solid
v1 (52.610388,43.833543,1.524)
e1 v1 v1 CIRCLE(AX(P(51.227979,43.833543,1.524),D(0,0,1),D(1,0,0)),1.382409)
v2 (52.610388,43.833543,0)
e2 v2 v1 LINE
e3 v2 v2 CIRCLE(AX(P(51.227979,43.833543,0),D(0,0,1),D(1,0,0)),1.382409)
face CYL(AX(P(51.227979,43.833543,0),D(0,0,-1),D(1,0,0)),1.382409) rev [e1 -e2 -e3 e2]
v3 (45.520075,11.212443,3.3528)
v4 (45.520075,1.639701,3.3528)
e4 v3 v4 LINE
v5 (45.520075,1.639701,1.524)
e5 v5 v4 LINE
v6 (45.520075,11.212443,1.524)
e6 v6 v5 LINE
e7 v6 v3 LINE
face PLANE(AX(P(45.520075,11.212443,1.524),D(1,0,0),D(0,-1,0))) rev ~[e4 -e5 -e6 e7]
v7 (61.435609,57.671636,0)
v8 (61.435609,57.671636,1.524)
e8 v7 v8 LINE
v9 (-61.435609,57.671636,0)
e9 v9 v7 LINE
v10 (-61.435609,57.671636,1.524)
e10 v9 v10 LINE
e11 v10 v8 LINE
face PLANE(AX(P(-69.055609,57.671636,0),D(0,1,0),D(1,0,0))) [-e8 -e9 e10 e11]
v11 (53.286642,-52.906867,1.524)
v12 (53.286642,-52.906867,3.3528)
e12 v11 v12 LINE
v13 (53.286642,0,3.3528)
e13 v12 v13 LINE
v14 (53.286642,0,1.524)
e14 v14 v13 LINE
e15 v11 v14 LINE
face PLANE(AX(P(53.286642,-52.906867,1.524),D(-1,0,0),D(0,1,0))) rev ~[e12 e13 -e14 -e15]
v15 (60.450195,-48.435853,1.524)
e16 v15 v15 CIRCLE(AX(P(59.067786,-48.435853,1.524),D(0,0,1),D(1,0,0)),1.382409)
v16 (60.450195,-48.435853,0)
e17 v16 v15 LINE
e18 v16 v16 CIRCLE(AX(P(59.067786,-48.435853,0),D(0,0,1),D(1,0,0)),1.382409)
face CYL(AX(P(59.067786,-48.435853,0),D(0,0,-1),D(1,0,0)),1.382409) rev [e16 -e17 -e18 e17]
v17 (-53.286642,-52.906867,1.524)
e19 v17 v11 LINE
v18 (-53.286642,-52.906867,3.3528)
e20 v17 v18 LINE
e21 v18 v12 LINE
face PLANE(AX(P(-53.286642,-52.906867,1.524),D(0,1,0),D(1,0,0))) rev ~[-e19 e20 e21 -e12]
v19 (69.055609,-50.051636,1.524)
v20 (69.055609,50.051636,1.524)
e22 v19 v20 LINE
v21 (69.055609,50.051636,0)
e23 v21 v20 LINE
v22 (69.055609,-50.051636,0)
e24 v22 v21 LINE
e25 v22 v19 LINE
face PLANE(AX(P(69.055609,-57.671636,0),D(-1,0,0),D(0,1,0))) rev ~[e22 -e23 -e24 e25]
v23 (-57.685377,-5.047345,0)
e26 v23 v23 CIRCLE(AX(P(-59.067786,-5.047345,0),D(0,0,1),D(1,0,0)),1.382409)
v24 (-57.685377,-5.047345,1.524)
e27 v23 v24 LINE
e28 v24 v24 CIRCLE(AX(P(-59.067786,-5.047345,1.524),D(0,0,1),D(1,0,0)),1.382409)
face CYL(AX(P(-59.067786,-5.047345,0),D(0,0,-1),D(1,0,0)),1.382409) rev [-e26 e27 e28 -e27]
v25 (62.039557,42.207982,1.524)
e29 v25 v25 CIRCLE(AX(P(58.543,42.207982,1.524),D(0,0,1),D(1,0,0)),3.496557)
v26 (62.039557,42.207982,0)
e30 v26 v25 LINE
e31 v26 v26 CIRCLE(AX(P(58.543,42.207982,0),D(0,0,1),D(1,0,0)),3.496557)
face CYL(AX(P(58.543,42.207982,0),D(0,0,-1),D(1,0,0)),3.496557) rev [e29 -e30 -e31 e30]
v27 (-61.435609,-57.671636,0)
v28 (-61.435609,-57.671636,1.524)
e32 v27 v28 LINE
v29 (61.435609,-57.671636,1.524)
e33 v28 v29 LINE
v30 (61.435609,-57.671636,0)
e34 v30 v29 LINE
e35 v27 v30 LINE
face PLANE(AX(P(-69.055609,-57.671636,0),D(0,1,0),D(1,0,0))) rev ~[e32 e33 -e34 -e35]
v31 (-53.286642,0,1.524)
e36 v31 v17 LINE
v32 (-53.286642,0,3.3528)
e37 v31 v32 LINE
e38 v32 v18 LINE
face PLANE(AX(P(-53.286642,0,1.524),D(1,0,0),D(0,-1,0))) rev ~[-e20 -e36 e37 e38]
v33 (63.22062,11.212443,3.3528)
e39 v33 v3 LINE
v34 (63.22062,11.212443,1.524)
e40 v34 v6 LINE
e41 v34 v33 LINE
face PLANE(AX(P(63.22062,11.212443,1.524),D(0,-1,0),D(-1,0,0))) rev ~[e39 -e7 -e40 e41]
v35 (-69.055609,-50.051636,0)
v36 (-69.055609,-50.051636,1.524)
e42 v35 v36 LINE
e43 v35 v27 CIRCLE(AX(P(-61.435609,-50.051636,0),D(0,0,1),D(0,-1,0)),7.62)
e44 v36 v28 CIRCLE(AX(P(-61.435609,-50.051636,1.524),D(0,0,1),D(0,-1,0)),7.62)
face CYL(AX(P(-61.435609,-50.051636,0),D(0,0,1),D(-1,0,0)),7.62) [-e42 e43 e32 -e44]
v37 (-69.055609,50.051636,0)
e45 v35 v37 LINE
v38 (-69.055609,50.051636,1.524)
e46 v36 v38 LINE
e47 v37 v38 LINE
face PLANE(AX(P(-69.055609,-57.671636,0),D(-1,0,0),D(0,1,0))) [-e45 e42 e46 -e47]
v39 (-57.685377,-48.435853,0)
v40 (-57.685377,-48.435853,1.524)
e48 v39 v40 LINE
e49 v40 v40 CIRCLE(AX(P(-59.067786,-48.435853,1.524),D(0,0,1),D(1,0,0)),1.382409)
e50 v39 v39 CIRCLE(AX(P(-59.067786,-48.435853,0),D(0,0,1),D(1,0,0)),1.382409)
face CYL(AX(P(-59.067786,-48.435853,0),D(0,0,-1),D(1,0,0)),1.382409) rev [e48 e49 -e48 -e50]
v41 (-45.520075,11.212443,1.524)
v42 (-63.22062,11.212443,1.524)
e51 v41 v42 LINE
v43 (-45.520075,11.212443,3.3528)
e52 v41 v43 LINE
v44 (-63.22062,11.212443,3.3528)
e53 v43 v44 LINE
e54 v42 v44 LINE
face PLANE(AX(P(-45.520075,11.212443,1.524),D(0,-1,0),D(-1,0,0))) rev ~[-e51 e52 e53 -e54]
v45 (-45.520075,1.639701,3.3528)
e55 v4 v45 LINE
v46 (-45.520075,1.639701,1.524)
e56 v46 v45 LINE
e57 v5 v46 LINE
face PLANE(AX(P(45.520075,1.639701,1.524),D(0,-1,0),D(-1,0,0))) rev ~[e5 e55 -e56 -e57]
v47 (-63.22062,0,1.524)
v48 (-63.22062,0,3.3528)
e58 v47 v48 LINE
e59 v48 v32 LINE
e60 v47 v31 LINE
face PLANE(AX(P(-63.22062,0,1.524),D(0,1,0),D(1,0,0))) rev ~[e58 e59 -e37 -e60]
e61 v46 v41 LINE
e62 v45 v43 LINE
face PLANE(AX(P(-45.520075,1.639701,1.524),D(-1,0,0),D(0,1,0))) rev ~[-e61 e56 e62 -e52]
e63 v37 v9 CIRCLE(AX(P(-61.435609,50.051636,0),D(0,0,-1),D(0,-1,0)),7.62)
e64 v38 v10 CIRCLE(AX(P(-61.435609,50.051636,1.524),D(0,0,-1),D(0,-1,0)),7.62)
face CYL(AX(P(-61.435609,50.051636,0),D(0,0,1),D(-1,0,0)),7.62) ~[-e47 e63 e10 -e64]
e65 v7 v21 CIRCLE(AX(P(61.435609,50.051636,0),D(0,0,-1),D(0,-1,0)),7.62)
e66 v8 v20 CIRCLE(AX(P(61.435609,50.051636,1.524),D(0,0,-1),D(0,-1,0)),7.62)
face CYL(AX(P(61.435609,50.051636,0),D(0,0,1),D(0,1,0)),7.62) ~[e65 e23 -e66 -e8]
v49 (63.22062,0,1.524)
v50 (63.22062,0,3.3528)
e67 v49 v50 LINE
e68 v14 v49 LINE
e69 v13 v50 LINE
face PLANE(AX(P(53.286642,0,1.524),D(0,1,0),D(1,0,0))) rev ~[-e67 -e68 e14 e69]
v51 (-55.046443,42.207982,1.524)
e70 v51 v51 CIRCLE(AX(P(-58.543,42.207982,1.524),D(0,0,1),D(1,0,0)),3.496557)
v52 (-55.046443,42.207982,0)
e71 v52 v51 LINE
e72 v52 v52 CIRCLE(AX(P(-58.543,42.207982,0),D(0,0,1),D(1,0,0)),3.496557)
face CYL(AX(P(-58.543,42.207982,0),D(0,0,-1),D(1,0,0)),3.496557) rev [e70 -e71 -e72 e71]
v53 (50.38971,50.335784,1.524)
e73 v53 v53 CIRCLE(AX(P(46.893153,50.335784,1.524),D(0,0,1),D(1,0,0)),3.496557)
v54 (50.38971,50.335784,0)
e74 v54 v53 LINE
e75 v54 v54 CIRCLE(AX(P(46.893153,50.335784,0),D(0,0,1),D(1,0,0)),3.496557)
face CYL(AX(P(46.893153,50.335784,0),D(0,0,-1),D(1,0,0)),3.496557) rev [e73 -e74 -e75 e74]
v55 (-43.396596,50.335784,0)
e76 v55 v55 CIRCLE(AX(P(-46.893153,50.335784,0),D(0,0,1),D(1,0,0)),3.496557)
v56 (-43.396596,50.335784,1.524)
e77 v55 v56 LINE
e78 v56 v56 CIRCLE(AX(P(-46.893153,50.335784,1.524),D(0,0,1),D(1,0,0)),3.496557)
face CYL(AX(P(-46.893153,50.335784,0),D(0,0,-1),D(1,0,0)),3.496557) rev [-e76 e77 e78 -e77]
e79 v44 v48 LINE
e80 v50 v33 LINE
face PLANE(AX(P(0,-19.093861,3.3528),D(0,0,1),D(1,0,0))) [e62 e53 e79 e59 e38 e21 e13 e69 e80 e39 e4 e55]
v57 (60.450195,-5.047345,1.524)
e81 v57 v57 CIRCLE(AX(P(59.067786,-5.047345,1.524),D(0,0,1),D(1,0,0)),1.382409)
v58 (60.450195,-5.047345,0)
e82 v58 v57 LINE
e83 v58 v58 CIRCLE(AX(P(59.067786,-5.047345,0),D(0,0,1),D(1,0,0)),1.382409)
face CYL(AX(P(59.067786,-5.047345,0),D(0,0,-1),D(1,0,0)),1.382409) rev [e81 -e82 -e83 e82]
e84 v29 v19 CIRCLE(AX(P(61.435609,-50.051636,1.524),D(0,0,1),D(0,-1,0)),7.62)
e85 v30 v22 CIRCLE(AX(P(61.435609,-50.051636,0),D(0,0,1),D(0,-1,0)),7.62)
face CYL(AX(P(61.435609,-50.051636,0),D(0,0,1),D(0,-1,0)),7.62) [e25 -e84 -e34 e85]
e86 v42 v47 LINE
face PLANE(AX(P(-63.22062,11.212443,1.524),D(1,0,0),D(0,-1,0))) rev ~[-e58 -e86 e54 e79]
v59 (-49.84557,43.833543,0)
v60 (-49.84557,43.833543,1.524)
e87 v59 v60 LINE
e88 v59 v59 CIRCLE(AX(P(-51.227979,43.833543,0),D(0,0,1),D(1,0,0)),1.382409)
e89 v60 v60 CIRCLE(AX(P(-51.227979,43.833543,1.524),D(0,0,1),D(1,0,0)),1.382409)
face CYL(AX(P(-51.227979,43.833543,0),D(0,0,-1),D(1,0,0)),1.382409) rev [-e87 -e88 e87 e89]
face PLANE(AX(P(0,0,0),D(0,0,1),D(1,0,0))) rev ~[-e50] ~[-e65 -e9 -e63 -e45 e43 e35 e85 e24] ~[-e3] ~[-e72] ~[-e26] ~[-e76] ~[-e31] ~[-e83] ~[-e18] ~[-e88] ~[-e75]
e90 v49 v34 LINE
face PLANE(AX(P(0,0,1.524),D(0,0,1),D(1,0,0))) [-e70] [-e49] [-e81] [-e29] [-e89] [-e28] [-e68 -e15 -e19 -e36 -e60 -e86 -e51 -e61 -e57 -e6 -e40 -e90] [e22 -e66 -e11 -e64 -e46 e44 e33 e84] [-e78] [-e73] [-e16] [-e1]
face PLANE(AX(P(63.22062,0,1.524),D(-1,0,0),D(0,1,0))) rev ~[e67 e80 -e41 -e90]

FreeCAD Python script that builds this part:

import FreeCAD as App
import Part
import Sketcher

V = App.Vector
Q = App.Units.Quantity


def edges_at(feature, points):
    """Names of the edges that pass closest to the given points."""
    edges = feature.Shape.Edges
    near = lambda p: min(range(len(edges)), key=lambda i: edges[i].distToShape(Part.Vertex(*p))[0])
    return sorted({f"Edge{near(p) + 1}" for p in points})


def add_polygon(sketch, points):
    """Adds a closed chain of lines whose ends are joined by coincident constraints."""
    first, n = sketch.GeometryCount, len(points)
    for a, b in zip(points, points[1:] + points[:1]):
        sketch.addGeometry(Part.LineSegment(App.Vector(*a, 0), App.Vector(*b, 0)), False)
    for i in range(n):
        sketch.addConstraint(Sketcher.Constraint("Coincident", first + i, 2, first + (i + 1) % n, 1))

doc = App.newDocument("Part")
body = doc.addObject("PartDesign::Body", "Body")

sketch1 = body.newObject("Sketcher::SketchObject", "Sketch")
sketch1.AttachmentSupport = (doc.getObject("XY_Plane"), [""])
sketch1.MapMode = "FlatFace"
add_polygon(sketch1, [(-69.1, 57.7), (-69.1, -57.7), (69.1, -57.7), (69.1, 57.7)])
sketch1.addGeometry(Part.Circle(V(-59.1, -48.4, 0), V(0, 0, 1), 1.4), False)
sketch1.addGeometry(Part.Circle(V(-59.1, -5, 0), V(0, 0, 1), 1.4), False)
sketch1.addGeometry(Part.Circle(V(59.1, -48.4, 0), V(0, 0, 1), 1.4), False)
sketch1.addGeometry(Part.Circle(V(59.1, -5, 0), V(0, 0, 1), 1.4), False)
sketch1.addGeometry(Part.Circle(V(-58.5, 42.2, 0), V(0, 0, 1), 3.5), False)
sketch1.addGeometry(Part.Circle(V(-51.2, 43.8, 0), V(0, 0, 1), 1.4), False)
sketch1.addGeometry(Part.Circle(V(-46.9, 50.3, 0), V(0, 0, 1), 3.5), False)
sketch1.addGeometry(Part.Circle(V(51.2, 43.8, 0), V(0, 0, 1), 1.4), False)
sketch1.addGeometry(Part.Circle(V(58.5, 42.2, 0), V(0, 0, 1), 3.5), False)
sketch1.addGeometry(Part.Circle(V(46.9, 50.3, 0), V(0, 0, 1), 3.5), False)
sketch1.addConstraint(Sketcher.Constraint("Vertical", 0))
sketch1.addConstraint(Sketcher.Constraint("Horizontal", 1))
sketch1.addConstraint(Sketcher.Constraint("Vertical", 2))
sketch1.addConstraint(Sketcher.Constraint("Horizontal", 3))
sketch1.addConstraint(Sketcher.Constraint("Equal", 4, 5))
sketch1.addConstraint(Sketcher.Constraint("Equal", 5, 6))
sketch1.addConstraint(Sketcher.Constraint("Equal", 6, 7))
sketch1.addConstraint(Sketcher.Constraint("Equal", 7, 9))
sketch1.addConstraint(Sketcher.Constraint("Equal", 8, 10))
sketch1.addConstraint(Sketcher.Constraint("Equal", 9, 11))
sketch1.addConstraint(Sketcher.Constraint("Equal", 10, 12))
sketch1.addConstraint(Sketcher.Constraint("Equal", 12, 13))
sketch1.addConstraint(Sketcher.Constraint("Symmetric", 0, 2, 2, 2, -1, 1))
sketch1.addConstraint(Sketcher.Constraint("Symmetric", 4, 3, 6, 3, -2))
sketch1.addConstraint(Sketcher.Constraint("Symmetric", 5, 3, 7, 3, -2))
sketch1.addConstraint(Sketcher.Constraint("Symmetric", 9, 3, 11, 3, -2))
sketch1.addConstraint(Sketcher.Constraint("Symmetric", 8, 3, 12, 3, -2))
sketch1.addConstraint(Sketcher.Constraint("Symmetric", 10, 3, 13, 3, -2))
sketch1.addConstraint(Sketcher.Constraint("Vertical", 4, 3, 5, 3))
sketch1.addConstraint(Sketcher.Constraint("Diameter", 4, 2.764818))
sketch1.addConstraint(Sketcher.Constraint("Diameter", 8, 6.993114))
sketch1.addConstraint(Sketcher.Constraint("DistanceX", 1, 1, 1, 2, 138.111218))
sketch1.addConstraint(Sketcher.Constraint("DistanceY", 0, 2, 0, 1, 115.343272))
sketch1.addConstraint(Sketcher.Constraint("DistanceX", 8, 3, -1, 1, 58.543))
sketch1.addConstraint(Sketcher.Constraint("DistanceY", 8, 3, 10, 3, 8.127802))
sketch1.addConstraint(Sketcher.Constraint("DistanceX", 9, 3, -1, 1, 51.227979))
sketch1.addConstraint(Sketcher.Constraint("DistanceY", 4, 3, 5, 3, 43.388508))
sketch1.addConstraint(Sketcher.Constraint("DistanceX", 4, 3, 6, 3, 118.135572))
sketch1.addConstraint(Sketcher.Constraint("DistanceY", 8, 3, 9, 3, 1.625561))
sketch1.addConstraint(Sketcher.Constraint("DistanceY", 5, 3, 10, 3, 55.383129))
sketch1.addConstraint(Sketcher.Constraint("DistanceX", 10, 3, 7, 3, 105.960939))
sketch1.addConstraint(Sketcher.Constraint("DistanceY", 0, 2, 5, 3, 52.624291))
pad1 = body.newObject("PartDesign::Pad", "Pad")
pad1.Profile = sketch1
pad1.Length = Q("0.06 in")

sketch2 = body.newObject("Sketcher::SketchObject", "Sketch001")
sketch2.AttachmentSupport = (doc.getObject("XY_Plane"), [""])
sketch2.MapMode = "FlatFace"
sketch2.AttachmentOffset = App.Placement(V(0, 0, 0.06 * 25.4), App.Rotation())
add_polygon(sketch2, [(-53, -53), (53, -53), (53, 0), (63, 0), (63, 11), (46, 11), (46, 2), (-46, 2), (-46, 11), (-63, 11), (-63, 0), (-53, 0)])
sketch2.addConstraint(Sketcher.Constraint("Horizontal", 0))
sketch2.addConstraint(Sketcher.Constraint("Vertical", 1))
sketch2.addConstraint(Sketcher.Constraint("Horizontal", 2))
sketch2.addConstraint(Sketcher.Constraint("Vertical", 3))
sketch2.addConstraint(Sketcher.Constraint("Horizontal", 4))
sketch2.addConstraint(Sketcher.Constraint("Vertical", 5))
sketch2.addConstraint(Sketcher.Constraint("Horizontal", 6))
sketch2.addConstraint(Sketcher.Constraint("Vertical", 7))
sketch2.addConstraint(Sketcher.Constraint("Horizontal", 8))
sketch2.addConstraint(Sketcher.Constraint("Vertical", 9))
sketch2.addConstraint(Sketcher.Constraint("Horizontal", 10))
sketch2.addConstraint(Sketcher.Constraint("Vertical", 11))
sketch2.addConstraint(Sketcher.Constraint("Symmetric", 2, 2, 9, 2, -1, 1))
sketch2.addConstraint(Sketcher.Constraint("Symmetric", 4, 2, 7, 2, -2))
sketch2.addConstraint(Sketcher.Constraint("Symmetric", 1, 2, 10, 2, -2))
sketch2.addConstraint(Sketcher.Constraint("DistanceX", 8, 2, 1, 2, Q("4.5869001 in")))
sketch2.addConstraint(Sketcher.Constraint("DistanceX", 6, 2, 6, 1, 91.04015))
sketch2.addConstraint(Sketcher.Constraint("DistanceY", -1, 1, 5, 2, 1.639701))
sketch2.addConstraint(Sketcher.Constraint("DistanceX", 0, 1, 0, 2, 106.573284))
sketch2.addConstraint(Sketcher.Constraint("DistanceY", 1, 1, 1, 2, 52.906867))
sketch2.addConstraint(Sketcher.Constraint("DistanceY", 3, 1, 3, 2, 11.212443))
pad2 = body.newObject("PartDesign::Pad", "Pad001")
pad2.Profile = sketch2
pad2.Length = Q("0.072 in")
doc.recompute()

fillet = body.newObject("PartDesign::Fillet", "Fillet")
fillet.Base = (pad2, edges_at(pad2, [
    (-69.056, 57.672, 0.762),
    (69.056, 57.672, 0.762),
    (69.056, -57.672, 0.762),
    (-69.056, -57.672, 0.762),
]))
fillet.Radius = Q("0.3 in")

doc.recompute()
